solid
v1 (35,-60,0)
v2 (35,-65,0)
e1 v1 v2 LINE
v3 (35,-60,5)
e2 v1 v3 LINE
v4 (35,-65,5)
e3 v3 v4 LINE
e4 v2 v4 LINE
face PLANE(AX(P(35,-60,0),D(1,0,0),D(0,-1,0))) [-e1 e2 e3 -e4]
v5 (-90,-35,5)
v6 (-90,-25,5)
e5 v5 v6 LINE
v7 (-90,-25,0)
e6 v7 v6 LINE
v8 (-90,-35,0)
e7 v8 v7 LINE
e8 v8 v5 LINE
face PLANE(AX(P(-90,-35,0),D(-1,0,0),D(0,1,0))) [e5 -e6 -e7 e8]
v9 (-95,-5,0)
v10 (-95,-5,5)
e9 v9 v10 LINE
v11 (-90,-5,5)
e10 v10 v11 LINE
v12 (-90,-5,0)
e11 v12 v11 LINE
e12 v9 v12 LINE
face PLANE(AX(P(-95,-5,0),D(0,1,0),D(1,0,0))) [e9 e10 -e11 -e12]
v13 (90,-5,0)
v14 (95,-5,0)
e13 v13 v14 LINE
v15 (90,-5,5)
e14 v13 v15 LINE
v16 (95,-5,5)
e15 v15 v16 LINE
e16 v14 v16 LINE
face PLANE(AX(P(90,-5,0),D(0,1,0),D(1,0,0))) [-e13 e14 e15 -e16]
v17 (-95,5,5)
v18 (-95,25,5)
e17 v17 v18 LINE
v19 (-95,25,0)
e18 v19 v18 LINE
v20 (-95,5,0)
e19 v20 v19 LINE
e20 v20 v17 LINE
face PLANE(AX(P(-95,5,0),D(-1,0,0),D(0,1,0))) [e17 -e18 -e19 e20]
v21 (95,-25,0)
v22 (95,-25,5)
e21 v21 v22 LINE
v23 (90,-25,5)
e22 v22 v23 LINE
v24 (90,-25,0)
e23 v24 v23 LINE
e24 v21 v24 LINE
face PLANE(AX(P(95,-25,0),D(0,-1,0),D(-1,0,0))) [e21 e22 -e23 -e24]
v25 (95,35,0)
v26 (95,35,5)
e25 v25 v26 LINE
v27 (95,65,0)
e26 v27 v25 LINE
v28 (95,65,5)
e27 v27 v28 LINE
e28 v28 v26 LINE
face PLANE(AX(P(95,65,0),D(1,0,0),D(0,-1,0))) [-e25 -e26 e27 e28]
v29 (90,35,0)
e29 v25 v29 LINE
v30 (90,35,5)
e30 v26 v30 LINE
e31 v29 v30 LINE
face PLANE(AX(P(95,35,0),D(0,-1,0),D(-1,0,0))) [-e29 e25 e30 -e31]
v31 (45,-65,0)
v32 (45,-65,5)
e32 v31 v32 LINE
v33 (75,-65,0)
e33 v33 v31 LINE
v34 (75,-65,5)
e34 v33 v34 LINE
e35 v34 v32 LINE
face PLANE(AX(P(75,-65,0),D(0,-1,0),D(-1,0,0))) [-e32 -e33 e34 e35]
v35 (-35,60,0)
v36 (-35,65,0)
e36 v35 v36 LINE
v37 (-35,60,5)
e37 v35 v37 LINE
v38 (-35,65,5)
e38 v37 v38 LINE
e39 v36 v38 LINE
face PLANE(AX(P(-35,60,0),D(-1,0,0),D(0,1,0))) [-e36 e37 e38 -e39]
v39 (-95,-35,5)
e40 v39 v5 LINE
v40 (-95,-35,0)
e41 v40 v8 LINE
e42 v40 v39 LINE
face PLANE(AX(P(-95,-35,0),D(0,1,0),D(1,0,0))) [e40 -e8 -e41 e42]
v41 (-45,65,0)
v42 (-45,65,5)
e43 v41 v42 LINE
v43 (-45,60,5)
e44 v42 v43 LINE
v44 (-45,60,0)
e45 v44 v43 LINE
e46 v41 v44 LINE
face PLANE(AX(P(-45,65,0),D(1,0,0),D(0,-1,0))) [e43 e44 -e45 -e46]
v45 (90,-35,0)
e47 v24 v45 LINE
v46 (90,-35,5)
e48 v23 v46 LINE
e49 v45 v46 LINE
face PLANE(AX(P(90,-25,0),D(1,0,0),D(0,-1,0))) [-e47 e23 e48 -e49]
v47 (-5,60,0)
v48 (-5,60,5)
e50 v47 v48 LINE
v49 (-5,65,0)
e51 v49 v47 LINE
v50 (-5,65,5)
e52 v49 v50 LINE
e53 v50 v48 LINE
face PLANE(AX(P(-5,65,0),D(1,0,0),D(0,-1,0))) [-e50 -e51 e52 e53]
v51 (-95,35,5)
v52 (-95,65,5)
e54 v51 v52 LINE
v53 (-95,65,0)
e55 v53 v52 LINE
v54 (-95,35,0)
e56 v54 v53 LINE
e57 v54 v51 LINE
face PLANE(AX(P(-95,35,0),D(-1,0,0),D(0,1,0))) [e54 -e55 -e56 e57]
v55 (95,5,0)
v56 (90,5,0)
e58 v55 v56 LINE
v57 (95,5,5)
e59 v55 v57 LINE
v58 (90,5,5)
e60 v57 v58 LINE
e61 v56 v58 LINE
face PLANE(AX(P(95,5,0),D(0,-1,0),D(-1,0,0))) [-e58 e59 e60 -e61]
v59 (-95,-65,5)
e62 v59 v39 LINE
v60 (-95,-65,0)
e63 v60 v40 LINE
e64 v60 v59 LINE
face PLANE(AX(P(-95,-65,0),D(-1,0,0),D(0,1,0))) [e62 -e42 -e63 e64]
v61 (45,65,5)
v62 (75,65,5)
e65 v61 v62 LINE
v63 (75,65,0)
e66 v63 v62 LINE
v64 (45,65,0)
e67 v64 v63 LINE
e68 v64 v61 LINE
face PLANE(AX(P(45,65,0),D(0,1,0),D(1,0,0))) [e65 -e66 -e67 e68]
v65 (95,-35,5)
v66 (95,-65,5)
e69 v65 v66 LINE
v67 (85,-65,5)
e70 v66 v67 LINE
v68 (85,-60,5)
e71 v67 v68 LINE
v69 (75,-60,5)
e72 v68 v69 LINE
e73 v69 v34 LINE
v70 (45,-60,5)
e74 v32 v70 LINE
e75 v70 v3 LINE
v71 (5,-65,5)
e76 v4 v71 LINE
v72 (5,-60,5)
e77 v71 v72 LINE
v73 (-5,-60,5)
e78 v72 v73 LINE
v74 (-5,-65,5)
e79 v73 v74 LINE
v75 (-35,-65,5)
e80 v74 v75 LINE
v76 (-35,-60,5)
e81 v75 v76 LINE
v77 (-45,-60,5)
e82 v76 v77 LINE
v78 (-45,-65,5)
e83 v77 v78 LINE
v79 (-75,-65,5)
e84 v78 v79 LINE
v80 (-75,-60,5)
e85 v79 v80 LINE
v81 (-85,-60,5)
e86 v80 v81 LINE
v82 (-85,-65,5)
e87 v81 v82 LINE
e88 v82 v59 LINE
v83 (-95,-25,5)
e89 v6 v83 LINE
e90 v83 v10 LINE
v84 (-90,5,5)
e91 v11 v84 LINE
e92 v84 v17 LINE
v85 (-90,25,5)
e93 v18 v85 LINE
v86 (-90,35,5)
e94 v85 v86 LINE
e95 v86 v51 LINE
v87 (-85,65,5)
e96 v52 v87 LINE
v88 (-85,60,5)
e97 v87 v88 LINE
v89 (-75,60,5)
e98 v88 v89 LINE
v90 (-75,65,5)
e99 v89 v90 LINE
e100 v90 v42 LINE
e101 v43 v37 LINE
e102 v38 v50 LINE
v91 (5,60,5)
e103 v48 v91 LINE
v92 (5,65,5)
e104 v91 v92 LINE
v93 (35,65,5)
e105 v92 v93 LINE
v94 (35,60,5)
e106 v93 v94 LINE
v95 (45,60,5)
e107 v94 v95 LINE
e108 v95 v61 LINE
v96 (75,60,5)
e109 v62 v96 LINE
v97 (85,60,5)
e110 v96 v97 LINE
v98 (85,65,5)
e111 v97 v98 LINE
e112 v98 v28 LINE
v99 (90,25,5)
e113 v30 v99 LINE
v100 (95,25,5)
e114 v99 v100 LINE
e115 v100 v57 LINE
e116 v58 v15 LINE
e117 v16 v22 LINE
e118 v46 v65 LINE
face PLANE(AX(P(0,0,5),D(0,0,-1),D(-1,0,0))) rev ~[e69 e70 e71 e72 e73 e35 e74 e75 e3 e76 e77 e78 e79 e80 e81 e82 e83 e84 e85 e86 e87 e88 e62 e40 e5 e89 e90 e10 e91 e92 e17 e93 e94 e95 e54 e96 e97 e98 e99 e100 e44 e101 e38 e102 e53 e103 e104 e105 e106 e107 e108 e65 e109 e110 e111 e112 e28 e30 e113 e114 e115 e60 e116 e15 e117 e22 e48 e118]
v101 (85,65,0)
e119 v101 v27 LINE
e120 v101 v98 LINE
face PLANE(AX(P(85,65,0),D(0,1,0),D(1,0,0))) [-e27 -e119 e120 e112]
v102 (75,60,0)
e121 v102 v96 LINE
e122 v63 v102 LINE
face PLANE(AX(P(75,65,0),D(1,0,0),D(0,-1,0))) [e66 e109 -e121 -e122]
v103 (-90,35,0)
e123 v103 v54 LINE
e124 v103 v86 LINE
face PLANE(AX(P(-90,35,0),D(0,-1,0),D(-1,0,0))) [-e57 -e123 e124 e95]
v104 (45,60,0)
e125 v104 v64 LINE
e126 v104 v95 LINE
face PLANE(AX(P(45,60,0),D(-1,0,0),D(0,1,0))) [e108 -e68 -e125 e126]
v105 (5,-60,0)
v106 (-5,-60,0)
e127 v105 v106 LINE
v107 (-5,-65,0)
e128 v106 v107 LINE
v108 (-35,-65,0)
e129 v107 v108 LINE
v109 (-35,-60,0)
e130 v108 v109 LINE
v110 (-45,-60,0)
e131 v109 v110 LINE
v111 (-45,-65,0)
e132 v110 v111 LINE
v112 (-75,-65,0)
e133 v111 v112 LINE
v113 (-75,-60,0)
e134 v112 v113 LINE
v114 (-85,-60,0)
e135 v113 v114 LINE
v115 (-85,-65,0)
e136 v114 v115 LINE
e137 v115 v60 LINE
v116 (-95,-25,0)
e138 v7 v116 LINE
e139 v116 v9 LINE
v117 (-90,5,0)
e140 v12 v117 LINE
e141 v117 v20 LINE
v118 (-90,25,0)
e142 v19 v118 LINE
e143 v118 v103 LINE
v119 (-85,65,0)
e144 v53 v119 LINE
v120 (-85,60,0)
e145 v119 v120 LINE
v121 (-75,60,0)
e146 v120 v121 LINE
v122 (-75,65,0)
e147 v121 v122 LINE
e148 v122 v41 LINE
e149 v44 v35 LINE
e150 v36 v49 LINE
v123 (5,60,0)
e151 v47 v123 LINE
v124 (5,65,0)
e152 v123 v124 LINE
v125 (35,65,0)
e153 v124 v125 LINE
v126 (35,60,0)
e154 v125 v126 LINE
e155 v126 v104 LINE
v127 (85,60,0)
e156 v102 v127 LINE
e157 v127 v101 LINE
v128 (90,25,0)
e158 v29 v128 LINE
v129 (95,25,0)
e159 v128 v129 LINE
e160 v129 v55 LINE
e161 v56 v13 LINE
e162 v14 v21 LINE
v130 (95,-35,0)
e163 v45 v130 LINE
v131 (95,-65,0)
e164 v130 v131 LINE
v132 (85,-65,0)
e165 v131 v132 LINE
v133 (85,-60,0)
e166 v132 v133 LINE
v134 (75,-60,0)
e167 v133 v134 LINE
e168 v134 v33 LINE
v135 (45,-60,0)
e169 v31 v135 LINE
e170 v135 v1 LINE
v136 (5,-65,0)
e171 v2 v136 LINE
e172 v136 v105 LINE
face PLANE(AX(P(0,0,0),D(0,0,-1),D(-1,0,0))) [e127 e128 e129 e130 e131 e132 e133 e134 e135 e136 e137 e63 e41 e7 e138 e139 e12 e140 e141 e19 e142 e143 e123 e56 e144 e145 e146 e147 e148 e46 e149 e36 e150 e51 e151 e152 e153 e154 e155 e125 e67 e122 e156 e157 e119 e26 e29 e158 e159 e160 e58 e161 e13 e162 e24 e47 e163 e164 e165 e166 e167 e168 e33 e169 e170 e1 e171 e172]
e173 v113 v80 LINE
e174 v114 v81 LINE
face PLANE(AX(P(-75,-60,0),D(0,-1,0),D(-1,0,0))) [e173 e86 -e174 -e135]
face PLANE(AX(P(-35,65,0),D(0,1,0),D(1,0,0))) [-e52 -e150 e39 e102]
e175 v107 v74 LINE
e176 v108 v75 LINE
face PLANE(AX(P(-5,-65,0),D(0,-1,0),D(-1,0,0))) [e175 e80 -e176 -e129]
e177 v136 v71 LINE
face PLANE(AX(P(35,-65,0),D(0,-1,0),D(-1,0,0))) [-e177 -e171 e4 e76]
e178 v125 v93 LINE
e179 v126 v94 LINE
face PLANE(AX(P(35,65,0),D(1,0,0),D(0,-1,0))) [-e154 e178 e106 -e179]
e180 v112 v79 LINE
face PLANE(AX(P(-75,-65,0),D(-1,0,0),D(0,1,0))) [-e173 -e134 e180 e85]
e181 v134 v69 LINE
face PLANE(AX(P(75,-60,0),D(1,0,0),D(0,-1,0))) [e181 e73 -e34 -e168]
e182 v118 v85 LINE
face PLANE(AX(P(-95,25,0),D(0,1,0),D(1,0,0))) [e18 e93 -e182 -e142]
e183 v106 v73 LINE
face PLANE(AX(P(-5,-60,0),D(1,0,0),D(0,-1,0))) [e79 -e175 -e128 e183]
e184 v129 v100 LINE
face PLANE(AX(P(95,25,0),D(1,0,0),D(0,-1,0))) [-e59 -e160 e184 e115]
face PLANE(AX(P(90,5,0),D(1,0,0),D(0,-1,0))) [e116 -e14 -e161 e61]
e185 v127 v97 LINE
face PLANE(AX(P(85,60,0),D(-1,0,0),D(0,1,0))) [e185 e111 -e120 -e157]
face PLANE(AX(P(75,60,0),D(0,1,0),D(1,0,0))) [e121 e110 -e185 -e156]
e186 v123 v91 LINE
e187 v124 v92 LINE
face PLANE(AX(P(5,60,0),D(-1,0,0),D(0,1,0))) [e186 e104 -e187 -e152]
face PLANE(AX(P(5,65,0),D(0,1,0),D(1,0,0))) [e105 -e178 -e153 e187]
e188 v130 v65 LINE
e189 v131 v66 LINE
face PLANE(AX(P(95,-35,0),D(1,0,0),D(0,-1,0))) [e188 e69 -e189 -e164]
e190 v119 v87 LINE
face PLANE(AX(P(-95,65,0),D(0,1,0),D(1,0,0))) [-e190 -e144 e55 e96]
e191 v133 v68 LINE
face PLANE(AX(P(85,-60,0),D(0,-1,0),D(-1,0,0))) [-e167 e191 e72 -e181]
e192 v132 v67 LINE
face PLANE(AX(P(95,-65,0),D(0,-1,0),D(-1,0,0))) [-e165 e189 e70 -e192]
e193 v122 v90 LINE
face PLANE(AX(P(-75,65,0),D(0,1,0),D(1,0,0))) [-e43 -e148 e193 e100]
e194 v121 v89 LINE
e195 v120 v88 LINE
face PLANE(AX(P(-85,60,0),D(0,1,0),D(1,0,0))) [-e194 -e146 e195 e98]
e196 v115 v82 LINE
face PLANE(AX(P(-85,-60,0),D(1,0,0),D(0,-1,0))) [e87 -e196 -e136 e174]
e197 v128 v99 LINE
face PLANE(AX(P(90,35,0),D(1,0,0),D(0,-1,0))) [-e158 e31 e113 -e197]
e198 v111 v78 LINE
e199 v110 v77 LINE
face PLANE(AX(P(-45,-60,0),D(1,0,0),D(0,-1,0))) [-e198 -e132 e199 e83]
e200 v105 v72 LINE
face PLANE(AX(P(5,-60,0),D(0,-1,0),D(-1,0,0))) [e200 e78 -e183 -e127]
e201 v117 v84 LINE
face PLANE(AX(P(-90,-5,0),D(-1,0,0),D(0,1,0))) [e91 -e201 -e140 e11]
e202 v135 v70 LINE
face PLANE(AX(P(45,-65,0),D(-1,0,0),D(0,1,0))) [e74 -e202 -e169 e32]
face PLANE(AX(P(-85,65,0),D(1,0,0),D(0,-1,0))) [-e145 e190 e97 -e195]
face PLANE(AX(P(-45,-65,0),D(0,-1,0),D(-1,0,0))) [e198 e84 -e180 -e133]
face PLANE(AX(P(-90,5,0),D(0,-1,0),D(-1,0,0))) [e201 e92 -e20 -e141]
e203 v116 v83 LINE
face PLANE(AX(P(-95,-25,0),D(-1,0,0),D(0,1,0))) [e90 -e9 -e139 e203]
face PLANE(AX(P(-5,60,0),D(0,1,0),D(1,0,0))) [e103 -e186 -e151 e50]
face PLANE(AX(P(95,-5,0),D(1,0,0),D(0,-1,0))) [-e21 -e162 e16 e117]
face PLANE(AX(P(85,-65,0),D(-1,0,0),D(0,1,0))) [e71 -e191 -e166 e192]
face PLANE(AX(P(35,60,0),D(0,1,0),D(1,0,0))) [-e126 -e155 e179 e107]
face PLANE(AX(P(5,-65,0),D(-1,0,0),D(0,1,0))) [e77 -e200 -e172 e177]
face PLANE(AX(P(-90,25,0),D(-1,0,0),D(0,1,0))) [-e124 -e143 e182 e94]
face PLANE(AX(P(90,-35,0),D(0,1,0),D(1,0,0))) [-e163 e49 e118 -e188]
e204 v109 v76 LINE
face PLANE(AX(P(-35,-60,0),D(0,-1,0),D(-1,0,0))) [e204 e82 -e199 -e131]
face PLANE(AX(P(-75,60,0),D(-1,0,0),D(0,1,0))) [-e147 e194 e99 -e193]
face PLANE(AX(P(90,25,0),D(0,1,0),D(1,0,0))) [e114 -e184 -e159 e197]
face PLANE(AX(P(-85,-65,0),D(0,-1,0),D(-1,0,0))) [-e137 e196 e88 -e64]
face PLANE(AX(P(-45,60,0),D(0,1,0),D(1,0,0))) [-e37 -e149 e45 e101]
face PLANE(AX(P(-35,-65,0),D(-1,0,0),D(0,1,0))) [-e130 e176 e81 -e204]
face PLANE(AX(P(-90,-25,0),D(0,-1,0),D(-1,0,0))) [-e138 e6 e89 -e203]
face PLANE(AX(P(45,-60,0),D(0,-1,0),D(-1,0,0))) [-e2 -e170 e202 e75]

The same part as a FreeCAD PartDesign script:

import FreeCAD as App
import Part
import Sketcher
from FreeCAD import Vector


def add_polygon(sketch, points):
    """Adds a closed chain of lines whose ends are joined by coincident constraints."""
    first, n = sketch.GeometryCount, len(points)
    for a, b in zip(points, points[1:] + points[:1]):
        sketch.addGeometry(Part.LineSegment(App.Vector(*a, 0), App.Vector(*b, 0)), False)
    for i in range(n):
        sketch.addConstraint(Sketcher.Constraint("Coincident", first + i, 2, first + (i + 1) % n, 1))

doc = App.newDocument("Part")
params = doc.addObject("Spreadsheet::Sheet", "Params")
for row, (alias, value) in enumerate([
    ("sketch1_width", "10 mm"),
    ("sketch1_width2", "5 mm"),
    ("sketch1_width3", "30 mm"),
    ("sketch1_height", "20 mm"),
    ("pad1_length", "5 mm"),
], start=1):
    params.set(f"A{row}", alias)
    params.set(f"B{row}", "=" + value)
    params.setAlias(f"B{row}", alias)

body = doc.addObject("PartDesign::Body", "Body")

sketch1 = body.newObject("Sketcher::SketchObject", "Sketch")
sketch1.AttachmentSupport = (doc.getObject("XY_Plane"), [""])
sketch1.MapMode = "FlatFace"
add_polygon(sketch1, [(-85, 60), (-85, 65), (-95, 65), (-95, 35), (-90, 35), (-90, 25), (-95, 25), (-95, 5), (-90, 5), (-90, -5), (-95, -5), (-95, -25), (-90, -25), (-90, -35), (-95, -35), (-95, -65), (-85, -65), (-85, -60), (-75, -60), (-75, -65), (-45, -65), (-45, -60), (-35, -60), (-35, -65), (-5, -65), (-5, -60), (5, -60), (5, -65), (35, -65), (35, -60), (45, -60), (45, -65), (75, -65), (75, -60), (85, -60), (85, -65), (95, -65), (95, -35), (90, -35), (90, -25), (95, -25), (95, -5), (90, -5), (90, 5), (95, 5), (95, 25), (90, 25), (90, 35), (95, 35), (95, 65), (85, 65), (85, 60), (75, 60), (75, 65), (45, 65), (45, 60), (35, 60), (35, 65), (5, 65), (5, 60), (-5, 60), (-5, 65), (-35, 65), (-35, 60), (-45, 60), (-45, 65), (-75, 65), (-75, 60)])
sketch1.addConstraint([
    Sketcher.Constraint("Vertical", 0),
    Sketcher.Constraint("Horizontal", 1),
    Sketcher.Constraint("Vertical", 2),
    Sketcher.Constraint("Horizontal", 3),
    Sketcher.Constraint("Vertical", 4),
    Sketcher.Constraint("Horizontal", 5),
    Sketcher.Constraint("Vertical", 6),
    Sketcher.Constraint("Horizontal", 7),
    Sketcher.Constraint("Vertical", 8),
    Sketcher.Constraint("Horizontal", 9),
    Sketcher.Constraint("Vertical", 10),
    Sketcher.Constraint("Horizontal", 11),
    Sketcher.Constraint("Vertical", 12),
    Sketcher.Constraint("Horizontal", 13),
    Sketcher.Constraint("Vertical", 14),
    Sketcher.Constraint("Horizontal", 15),
    Sketcher.Constraint("Vertical", 16),
    Sketcher.Constraint("Horizontal", 17),
    Sketcher.Constraint("Vertical", 18),
    Sketcher.Constraint("Horizontal", 19),
    Sketcher.Constraint("Vertical", 20),
    Sketcher.Constraint("Horizontal", 21),
    Sketcher.Constraint("Vertical", 22),
    Sketcher.Constraint("Horizontal", 23),
    Sketcher.Constraint("Vertical", 24),
    Sketcher.Constraint("Horizontal", 25),
    Sketcher.Constraint("Vertical", 26),
    Sketcher.Constraint("Horizontal", 27),
    Sketcher.Constraint("Vertical", 28),
    Sketcher.Constraint("Horizontal", 29),
    Sketcher.Constraint("Vertical", 30),
    Sketcher.Constraint("Horizontal", 31),
    Sketcher.Constraint("Vertical", 32),
    Sketcher.Constraint("Horizontal", 33),
    Sketcher.Constraint("Vertical", 34),
    Sketcher.Constraint("Horizontal", 35),
    Sketcher.Constraint("Vertical", 36),
    Sketcher.Constraint("Horizontal", 37),
    Sketcher.Constraint("Vertical", 38),
    Sketcher.Constraint("Horizontal", 39),
    Sketcher.Constraint("Vertical", 40),
    Sketcher.Constraint("Horizontal", 41),
    Sketcher.Constraint("Vertical", 42),
    Sketcher.Constraint("Horizontal", 43),
    Sketcher.Constraint("Vertical", 44),
    Sketcher.Constraint("Horizontal", 45),
    Sketcher.Constraint("Vertical", 46),
    Sketcher.Constraint("Horizontal", 47),
    Sketcher.Constraint("Vertical", 48),
    Sketcher.Constraint("Horizontal", 49),
    Sketcher.Constraint("Vertical", 50),
    Sketcher.Constraint("Horizontal", 51),
    Sketcher.Constraint("Vertical", 52),
    Sketcher.Constraint("Horizontal", 53),
    Sketcher.Constraint("Vertical", 54),
    Sketcher.Constraint("Horizontal", 55),
    Sketcher.Constraint("Vertical", 56),
    Sketcher.Constraint("Horizontal", 57),
    Sketcher.Constraint("Vertical", 58),
    Sketcher.Constraint("Horizontal", 59),
    Sketcher.Constraint("Vertical", 60),
    Sketcher.Constraint("Horizontal", 61),
    Sketcher.Constraint("Vertical", 62),
    Sketcher.Constraint("Horizontal", 63),
    Sketcher.Constraint("Vertical", 64),
    Sketcher.Constraint("Horizontal", 65),
    Sketcher.Constraint("Vertical", 66),
    Sketcher.Constraint("Horizontal", 67),
    Sketcher.Constraint("Symmetric", 0, 2, 34, 2, -1, 1),
    Sketcher.Constraint("Symmetric", 2, 2, 36, 2, -1, 1),
    Sketcher.Constraint("Symmetric", 4, 2, 38, 2, -1, 1),
    Sketcher.Constraint("Symmetric", 6, 2, 40, 2, -1, 1),
    Sketcher.Constraint("Symmetric", 8, 2, 42, 2, -1, 1),
    Sketcher.Constraint("Symmetric", 10, 2, 44, 2, -1, 1),
    Sketcher.Constraint("Symmetric", 12, 2, 46, 2, -1, 1),
    Sketcher.Constraint("Symmetric", 14, 2, 48, 2, -1, 1),
    Sketcher.Constraint("Symmetric", 16, 2, 50, 2, -1, 1),
    Sketcher.Constraint("Symmetric", 18, 2, 52, 2, -1, 1),
    Sketcher.Constraint("Symmetric", 20, 2, 54, 2, -1, 1),
    Sketcher.Constraint("Symmetric", 22, 2, 56, 2, -1, 1),
    Sketcher.Constraint("Symmetric", 24, 2, 58, 2, -1, 1),
    Sketcher.Constraint("Symmetric", 26, 2, 60, 2, -1, 1),
    Sketcher.Constraint("Symmetric", 28, 2, 62, 2, -1, 1),
    Sketcher.Constraint("Symmetric", 30, 2, 64, 2, -1, 1),
    Sketcher.Constraint("Symmetric", 32, 2, 66, 2, -1, 1),
    Sketcher.Constraint("Symmetric", 23, 2, 26, 2, -2),
    Sketcher.Constraint("Symmetric", 21, 2, 28, 2, -2),
    Sketcher.Constraint("Symmetric", 19, 2, 30, 2, -2),
    Sketcher.Constraint("Symmetric", 17, 2, 32, 2, -2),
    Sketcher.Constraint("Symmetric", 15, 2, 34, 2, -2),
    Sketcher.Constraint("Symmetric", 13, 2, 36, 2, -2),
    Sketcher.Constraint("Symmetric", 11, 2, 38, 2, -2),
    Sketcher.Constraint("Symmetric", 9, 2, 40, 2, -2),
    Sketcher.Constraint("Horizontal", 15, 2, 18, 2),
    Sketcher.Constraint("Horizontal", 17, 2, 20, 2),
    Sketcher.Constraint("Horizontal", 19, 2, 22, 2),
    Sketcher.Constraint("Horizontal", 21, 2, 24, 2),
    Sketcher.Constraint("Vertical", 2, 2, 5, 2),
    Sketcher.Constraint("Vertical", 4, 2, 7, 2),
    Sketcher.Constraint("Equal", 15, 17),
    Sketcher.Constraint("Equal", 17, 21),
    Sketcher.Constraint("Equal", 19, 23),
    Sketcher.Constraint("Equal", 21, 25),
    Sketcher.Constraint("Equal", 47, 0),
    Sketcher.Constraint("Equal", 65, 2),
    Sketcher.Constraint("Equal", 67, 4),
    Sketcher.Constraint("Equal", 4, 8),
    Sketcher.Constraint("DistanceX", 1, 2, 1, 1, 10.0),
    Sketcher.Constraint("DistanceX", 3, 1, 3, 2, 5.0),
    Sketcher.Constraint("DistanceX", 19, 1, 19, 2, 30.0),
    Sketcher.Constraint("DistanceY", 6, 2, 6, 1, 20.0),
])
sketch1.setExpression("Constraints[175]", "Params.sketch1_width")
sketch1.setExpression("Constraints[176]", "Params.sketch1_width2")
sketch1.setExpression("Constraints[177]", "Params.sketch1_width3")
sketch1.setExpression("Constraints[178]", "Params.sketch1_height")
pad1 = body.newObject("PartDesign::Pad", "Pad")
pad1.Profile = sketch1
pad1.setExpression("Length", "Params.pad1_length")

doc.recompute()
